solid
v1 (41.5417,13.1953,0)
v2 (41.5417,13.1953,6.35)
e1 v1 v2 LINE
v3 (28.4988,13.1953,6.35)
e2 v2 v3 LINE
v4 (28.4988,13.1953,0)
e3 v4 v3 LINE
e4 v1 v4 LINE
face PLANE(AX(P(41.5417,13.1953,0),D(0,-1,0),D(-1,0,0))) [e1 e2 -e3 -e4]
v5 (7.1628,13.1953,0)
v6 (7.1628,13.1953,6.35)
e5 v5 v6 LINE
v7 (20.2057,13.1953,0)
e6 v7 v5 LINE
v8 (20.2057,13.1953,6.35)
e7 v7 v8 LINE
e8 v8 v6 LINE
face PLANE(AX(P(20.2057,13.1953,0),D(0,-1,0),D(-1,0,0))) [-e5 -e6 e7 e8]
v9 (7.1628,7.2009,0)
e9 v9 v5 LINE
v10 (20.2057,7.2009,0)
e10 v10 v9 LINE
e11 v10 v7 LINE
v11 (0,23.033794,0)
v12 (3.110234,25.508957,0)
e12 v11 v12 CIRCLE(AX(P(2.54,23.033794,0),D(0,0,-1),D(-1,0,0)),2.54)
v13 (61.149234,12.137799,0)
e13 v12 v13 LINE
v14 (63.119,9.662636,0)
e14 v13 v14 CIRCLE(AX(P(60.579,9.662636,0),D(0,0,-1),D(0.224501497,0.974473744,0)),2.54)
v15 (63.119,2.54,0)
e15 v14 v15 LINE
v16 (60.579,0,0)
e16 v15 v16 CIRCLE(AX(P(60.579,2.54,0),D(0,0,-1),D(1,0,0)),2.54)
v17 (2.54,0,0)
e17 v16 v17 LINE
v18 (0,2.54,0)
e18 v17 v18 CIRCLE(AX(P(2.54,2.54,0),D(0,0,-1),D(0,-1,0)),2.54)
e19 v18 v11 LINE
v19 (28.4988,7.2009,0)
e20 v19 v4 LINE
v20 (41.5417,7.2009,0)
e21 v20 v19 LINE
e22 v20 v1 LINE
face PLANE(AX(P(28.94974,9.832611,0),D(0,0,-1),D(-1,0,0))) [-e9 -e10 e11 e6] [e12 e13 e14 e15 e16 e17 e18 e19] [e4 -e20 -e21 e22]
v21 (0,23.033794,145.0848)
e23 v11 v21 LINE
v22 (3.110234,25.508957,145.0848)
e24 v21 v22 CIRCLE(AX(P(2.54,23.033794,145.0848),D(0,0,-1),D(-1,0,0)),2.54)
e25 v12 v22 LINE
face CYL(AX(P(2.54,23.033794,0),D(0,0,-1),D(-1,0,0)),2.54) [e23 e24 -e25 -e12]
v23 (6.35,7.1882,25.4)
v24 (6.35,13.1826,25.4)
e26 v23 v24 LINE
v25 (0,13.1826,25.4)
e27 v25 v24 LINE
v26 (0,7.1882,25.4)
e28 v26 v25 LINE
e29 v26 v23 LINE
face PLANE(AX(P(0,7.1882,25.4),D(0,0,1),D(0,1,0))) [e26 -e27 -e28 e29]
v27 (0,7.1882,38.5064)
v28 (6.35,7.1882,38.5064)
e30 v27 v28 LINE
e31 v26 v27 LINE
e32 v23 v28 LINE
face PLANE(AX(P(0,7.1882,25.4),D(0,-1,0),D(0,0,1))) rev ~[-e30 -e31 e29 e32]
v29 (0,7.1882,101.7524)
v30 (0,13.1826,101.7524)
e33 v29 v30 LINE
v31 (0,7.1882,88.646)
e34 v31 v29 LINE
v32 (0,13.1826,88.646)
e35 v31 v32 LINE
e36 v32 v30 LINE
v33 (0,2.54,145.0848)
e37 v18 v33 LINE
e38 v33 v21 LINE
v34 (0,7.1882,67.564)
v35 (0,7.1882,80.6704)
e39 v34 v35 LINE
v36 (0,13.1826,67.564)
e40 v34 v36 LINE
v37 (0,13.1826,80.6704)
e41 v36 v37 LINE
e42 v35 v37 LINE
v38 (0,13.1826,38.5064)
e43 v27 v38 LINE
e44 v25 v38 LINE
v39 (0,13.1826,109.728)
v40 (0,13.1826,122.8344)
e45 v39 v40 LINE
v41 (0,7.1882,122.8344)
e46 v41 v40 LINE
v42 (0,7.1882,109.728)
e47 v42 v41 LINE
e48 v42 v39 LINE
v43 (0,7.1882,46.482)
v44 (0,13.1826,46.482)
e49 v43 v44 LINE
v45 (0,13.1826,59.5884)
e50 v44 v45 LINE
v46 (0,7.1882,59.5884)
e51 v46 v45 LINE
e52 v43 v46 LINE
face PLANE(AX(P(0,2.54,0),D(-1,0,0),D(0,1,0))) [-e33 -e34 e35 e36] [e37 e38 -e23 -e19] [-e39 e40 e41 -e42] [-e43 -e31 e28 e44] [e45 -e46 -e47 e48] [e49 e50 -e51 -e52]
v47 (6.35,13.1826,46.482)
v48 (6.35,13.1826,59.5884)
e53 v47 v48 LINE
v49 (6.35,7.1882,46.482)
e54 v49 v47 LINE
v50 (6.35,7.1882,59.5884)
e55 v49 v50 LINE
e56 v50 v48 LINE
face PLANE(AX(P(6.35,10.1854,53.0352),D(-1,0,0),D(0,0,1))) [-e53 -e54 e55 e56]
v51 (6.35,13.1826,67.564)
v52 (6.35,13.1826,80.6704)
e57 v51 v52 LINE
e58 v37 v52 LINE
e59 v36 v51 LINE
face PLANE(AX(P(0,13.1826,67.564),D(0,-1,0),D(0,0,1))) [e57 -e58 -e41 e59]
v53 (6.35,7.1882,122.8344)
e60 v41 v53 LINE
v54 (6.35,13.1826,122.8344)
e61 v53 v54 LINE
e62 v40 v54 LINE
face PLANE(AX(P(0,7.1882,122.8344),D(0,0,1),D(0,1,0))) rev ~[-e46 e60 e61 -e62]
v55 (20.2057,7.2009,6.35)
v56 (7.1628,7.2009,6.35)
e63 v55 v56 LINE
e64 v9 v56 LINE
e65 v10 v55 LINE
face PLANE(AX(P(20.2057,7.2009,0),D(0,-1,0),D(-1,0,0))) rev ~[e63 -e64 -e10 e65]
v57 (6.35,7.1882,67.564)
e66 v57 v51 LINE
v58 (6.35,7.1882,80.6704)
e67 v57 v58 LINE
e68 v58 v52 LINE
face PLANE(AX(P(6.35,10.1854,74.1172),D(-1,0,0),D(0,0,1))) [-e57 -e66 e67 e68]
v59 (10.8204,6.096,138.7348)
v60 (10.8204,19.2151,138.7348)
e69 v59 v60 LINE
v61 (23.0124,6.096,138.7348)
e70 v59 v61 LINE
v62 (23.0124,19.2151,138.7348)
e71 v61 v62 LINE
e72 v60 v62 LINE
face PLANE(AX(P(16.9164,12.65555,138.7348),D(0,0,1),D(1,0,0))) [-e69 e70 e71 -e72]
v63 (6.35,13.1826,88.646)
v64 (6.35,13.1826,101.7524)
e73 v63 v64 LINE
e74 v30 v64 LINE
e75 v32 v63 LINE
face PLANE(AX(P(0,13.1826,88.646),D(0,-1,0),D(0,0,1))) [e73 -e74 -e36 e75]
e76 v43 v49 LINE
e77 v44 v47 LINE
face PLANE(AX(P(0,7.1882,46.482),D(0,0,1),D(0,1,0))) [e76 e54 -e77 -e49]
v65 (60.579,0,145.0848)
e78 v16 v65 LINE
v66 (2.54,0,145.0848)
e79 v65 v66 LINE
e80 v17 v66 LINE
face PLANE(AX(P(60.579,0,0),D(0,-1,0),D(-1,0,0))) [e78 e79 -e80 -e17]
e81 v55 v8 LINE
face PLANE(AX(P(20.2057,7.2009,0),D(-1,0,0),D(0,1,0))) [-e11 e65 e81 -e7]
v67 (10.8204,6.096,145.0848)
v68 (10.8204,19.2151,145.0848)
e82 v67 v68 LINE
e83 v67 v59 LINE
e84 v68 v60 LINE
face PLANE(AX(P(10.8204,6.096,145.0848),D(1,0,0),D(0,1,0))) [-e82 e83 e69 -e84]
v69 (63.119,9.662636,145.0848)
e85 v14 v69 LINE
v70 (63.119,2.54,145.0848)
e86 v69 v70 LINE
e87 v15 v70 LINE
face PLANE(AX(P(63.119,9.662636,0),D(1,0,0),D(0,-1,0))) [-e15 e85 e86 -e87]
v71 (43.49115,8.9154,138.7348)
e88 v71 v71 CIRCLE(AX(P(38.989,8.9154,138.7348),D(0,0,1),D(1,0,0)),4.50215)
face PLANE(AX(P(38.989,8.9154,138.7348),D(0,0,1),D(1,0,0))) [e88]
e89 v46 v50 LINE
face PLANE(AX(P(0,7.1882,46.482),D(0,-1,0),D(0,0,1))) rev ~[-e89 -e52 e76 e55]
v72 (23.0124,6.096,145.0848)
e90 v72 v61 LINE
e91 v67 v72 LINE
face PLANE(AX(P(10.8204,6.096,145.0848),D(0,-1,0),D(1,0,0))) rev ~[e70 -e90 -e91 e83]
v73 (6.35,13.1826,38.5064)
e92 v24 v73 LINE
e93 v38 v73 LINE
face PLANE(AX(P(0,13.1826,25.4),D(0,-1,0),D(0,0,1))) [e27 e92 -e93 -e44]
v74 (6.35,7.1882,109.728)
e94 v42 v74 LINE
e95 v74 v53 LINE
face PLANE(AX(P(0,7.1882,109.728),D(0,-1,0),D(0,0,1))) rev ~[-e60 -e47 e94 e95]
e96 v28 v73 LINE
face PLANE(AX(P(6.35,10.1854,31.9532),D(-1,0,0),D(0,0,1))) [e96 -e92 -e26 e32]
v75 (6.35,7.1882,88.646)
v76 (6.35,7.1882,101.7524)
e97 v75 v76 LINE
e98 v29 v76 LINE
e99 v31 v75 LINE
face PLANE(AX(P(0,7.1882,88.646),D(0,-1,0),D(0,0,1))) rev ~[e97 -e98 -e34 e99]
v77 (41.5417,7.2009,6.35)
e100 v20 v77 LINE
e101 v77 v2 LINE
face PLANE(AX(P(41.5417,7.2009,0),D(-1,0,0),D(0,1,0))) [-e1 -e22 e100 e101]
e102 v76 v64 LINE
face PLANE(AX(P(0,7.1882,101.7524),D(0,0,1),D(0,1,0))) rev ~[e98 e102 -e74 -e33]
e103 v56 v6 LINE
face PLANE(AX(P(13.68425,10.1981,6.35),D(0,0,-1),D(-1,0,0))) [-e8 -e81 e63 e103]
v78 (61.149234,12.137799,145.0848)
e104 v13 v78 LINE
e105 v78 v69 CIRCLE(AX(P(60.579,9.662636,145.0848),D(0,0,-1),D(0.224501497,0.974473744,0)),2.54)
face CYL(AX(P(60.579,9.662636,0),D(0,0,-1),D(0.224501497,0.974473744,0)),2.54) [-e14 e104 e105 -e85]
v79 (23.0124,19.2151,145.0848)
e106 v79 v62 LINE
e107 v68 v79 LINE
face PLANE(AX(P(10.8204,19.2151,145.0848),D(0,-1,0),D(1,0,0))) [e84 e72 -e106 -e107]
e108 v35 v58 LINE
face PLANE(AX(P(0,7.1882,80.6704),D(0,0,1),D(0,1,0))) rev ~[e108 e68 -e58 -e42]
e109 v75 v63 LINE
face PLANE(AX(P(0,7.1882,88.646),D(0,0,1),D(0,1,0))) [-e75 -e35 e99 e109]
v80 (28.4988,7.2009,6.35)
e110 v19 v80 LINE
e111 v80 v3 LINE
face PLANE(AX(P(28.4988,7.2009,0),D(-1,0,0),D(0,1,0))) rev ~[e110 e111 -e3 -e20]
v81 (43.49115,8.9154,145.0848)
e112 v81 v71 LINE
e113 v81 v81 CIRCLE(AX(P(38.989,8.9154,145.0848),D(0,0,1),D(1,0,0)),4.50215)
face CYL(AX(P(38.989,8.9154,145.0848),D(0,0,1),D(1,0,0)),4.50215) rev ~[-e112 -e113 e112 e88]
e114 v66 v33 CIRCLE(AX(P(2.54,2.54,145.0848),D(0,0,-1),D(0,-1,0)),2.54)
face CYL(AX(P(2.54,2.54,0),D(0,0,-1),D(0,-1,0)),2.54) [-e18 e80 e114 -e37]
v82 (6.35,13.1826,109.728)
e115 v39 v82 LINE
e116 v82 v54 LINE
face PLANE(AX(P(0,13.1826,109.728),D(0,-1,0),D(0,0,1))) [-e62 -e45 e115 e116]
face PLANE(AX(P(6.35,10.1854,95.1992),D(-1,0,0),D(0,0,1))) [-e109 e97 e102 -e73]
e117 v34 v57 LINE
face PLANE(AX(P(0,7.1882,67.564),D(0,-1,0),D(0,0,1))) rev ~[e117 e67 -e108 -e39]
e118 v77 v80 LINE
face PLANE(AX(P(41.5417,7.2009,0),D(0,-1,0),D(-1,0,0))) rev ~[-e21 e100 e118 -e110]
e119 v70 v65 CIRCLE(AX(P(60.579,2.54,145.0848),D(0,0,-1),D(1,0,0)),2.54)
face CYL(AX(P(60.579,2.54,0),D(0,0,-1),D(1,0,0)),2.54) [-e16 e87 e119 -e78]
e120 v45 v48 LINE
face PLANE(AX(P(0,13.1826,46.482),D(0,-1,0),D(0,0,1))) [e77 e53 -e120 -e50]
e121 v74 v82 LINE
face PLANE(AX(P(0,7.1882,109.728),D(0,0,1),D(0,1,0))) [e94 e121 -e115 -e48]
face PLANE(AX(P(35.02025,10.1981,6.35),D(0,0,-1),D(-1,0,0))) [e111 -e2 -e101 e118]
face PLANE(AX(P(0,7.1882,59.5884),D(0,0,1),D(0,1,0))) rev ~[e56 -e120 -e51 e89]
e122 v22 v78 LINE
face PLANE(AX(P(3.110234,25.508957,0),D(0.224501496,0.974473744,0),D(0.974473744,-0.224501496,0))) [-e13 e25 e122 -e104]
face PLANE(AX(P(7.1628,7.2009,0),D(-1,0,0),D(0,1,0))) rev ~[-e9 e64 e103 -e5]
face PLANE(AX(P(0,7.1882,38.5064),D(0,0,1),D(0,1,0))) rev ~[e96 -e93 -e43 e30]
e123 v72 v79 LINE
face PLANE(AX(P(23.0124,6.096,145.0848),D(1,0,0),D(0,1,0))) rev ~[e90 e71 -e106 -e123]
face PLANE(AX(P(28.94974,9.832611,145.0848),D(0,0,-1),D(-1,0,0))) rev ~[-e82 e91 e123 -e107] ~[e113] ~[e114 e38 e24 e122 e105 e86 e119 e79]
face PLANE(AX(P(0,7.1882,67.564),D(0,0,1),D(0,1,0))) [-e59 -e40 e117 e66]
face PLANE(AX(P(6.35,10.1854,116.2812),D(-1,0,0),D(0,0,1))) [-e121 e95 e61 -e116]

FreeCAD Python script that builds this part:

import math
import FreeCAD as App
import Part
import Sketcher

V = App.Vector
Q = App.Units.Quantity


def add_polygon(sketch, points):
    """Adds a closed chain of lines whose ends are joined by coincident constraints."""
    first, n = sketch.GeometryCount, len(points)
    for a, b in zip(points, points[1:] + points[:1]):
        sketch.addGeometry(Part.LineSegment(App.Vector(*a, 0), App.Vector(*b, 0)), False)
    for i in range(n):
        sketch.addConstraint(Sketcher.Constraint("Coincident", first + i, 2, first + (i + 1) % n, 1))

doc = App.newDocument("Part")
body = doc.addObject("PartDesign::Body", "Body")

# Sketch on XY plane
sketch1 = body.newObject("Sketcher::SketchObject", "Sketch")
sketch1.AttachmentSupport = (doc.getObject("XY_Plane"), [""])
sketch1.MapMode = "FlatFace"
sketch1.addGeometry([
    Part.LineSegment(V(61.1, 12.1, 0), V(3.1, 25.5, 0)),  # 0
    Part.ArcOfCircle(Part.Circle(V(2.5, 23, 0), V(0, 0, 1), 2.5), math.radians(77), math.radians(180)),  # 1
    Part.LineSegment(V(0, 23, 0), V(0, 2.5, 0)),  # 2
    Part.ArcOfCircle(Part.Circle(V(2.5, 2.5, 0), V(0, 0, 1), 2.5), math.radians(-180), math.radians(-90)),  # 3
    Part.LineSegment(V(2.5, 0, 0), V(60.6, 0, 0)),  # 4
    Part.ArcOfCircle(Part.Circle(V(60.6, 2.5, 0), V(0, 0, 1), 2.5), math.radians(-90), math.radians(0)),  # 5
    Part.LineSegment(V(63.1, 2.5, 0), V(63.1, 9.7, 0)),  # 6
    Part.ArcOfCircle(Part.Circle(V(60.6, 9.7, 0), V(0, 0, 1), 2.5), math.radians(0), math.radians(77)),  # 7
], False)
sketch1.addConstraint([
    Sketcher.Constraint("Tangent", 0, 2, 1, 1),
    Sketcher.Constraint("Tangent", 1, 2, 2, 1),
    Sketcher.Constraint("Tangent", 2, 2, 3, 1),
    Sketcher.Constraint("Tangent", 3, 2, 4, 1),
    Sketcher.Constraint("Tangent", 4, 2, 5, 1),
    Sketcher.Constraint("Tangent", 5, 2, 6, 1),
    Sketcher.Constraint("Tangent", 6, 2, 7, 1),
    Sketcher.Constraint("Tangent", 7, 2, 0, 1),
    Sketcher.Constraint("Vertical", 2),
    Sketcher.Constraint("Horizontal", 4),
    Sketcher.Constraint("Vertical", 6),
    Sketcher.Constraint("Equal", 1, 3),
    Sketcher.Constraint("Equal", 3, 5),
    Sketcher.Constraint("Equal", 5, 7),
    Sketcher.Constraint("PointOnObject", 1, 2, -2),
    Sketcher.Constraint("PointOnObject", 3, 2, -1),
    Sketcher.Constraint("Radius", 1, Q("0.1 in")),
    Sketcher.Constraint("DistanceX", 4, 1, 4, 2, Q("2.285 in")),
    Sketcher.Constraint("DistanceY", -1, 1, 7, 2, Q("12.137799 mm")),
    Sketcher.Constraint("DistanceY", 2, 2, 2, 1, Q("20.493794 mm")),
])
pad1 = body.newObject("PartDesign::Pad", "Pad")
pad1.Profile = sketch1
pad1.Length = Q("5.712 in")

# Sketch on XY plane
sketch2 = body.newObject("Sketcher::SketchObject", "Sketch001")
sketch2.AttachmentSupport = (doc.getObject("XY_Plane"), [""])
sketch2.MapMode = "FlatFace"
sketch2.AttachmentOffset = App.Placement(V(0, 0, 5.712 * 25.4), App.Rotation())
sketch2.addGeometry(Part.Circle(V(39, 8.9, 0), V(0, 0, 1), 4.5), False)  # 0
add_polygon(sketch2, [(10.8, 19.2), (10.8, 6.1), (23, 6.1), (23, 19.2)])  # lines 1-4
sketch2.addConstraint([
    Sketcher.Constraint("Vertical", 1),
    Sketcher.Constraint("Horizontal", 2),
    Sketcher.Constraint("Vertical", 3),
    Sketcher.Constraint("Horizontal", 4),
    Sketcher.Constraint("Diameter", 0, Q("0.3545 in")),
    Sketcher.Constraint("DistanceX", 2, 1, 2, 2, Q("0.48 in")),
    Sketcher.Constraint("DistanceY", -1, 1, 1, 2, Q("0.24 in")),
    Sketcher.Constraint("DistanceY", 1, 2, 1, 1, Q("0.5165 in")),
    Sketcher.Constraint("DistanceX", -1, 1, 0, 3, Q("1.535 in")),
    Sketcher.Constraint("DistanceY", -1, 1, 0, 3, Q("0.351 in")),
    Sketcher.Constraint("DistanceX", -1, 1, 1, 2, Q("0.426 in")),
])
pocket1 = body.newObject("PartDesign::Pocket", "Pocket")
pocket1.Profile = sketch2
pocket1.Length = Q("0.25 in")

# Sketch on YZ plane
sketch3 = body.newObject("Sketcher::SketchObject", "Sketch002")
sketch3.AttachmentSupport = (doc.getObject("YZ_Plane"), [""])
sketch3.MapMode = "FlatFace"
add_polygon(sketch3, [(13, 25), (7, 25), (7, 39), (13, 39)])  # lines 0-3
add_polygon(sketch3, [(13, 46), (7, 46), (7, 60), (13, 60)])  # lines 4-7
add_polygon(sketch3, [(13, 68), (7, 68), (7, 81), (13, 81)])  # lines 8-11
add_polygon(sketch3, [(13, 89), (7, 89), (7, 102), (13, 102)])  # lines 12-15
add_polygon(sketch3, [(13, 110), (7, 110), (7, 123), (13, 123)])  # lines 16-19
sketch3.addConstraint([
    Sketcher.Constraint("Horizontal", 0),
    Sketcher.Constraint("Vertical", 1),
    Sketcher.Constraint("Horizontal", 2),
    Sketcher.Constraint("Vertical", 3),
    Sketcher.Constraint("Horizontal", 4),
    Sketcher.Constraint("Vertical", 5),
    Sketcher.Constraint("Horizontal", 6),
    Sketcher.Constraint("Vertical", 7),
    Sketcher.Constraint("Horizontal", 8),
    Sketcher.Constraint("Vertical", 9),
    Sketcher.Constraint("Horizontal", 10),
    Sketcher.Constraint("Vertical", 11),
    Sketcher.Constraint("Horizontal", 12),
    Sketcher.Constraint("Vertical", 13),
    Sketcher.Constraint("Horizontal", 14),
    Sketcher.Constraint("Vertical", 15),
    Sketcher.Constraint("Horizontal", 16),
    Sketcher.Constraint("Vertical", 17),
    Sketcher.Constraint("Horizontal", 18),
    Sketcher.Constraint("Vertical", 19),
    Sketcher.Constraint("Vertical", 1, 2, 4, 2),
    Sketcher.Constraint("Vertical", 3, 2, 6, 2),
    Sketcher.Constraint("Vertical", 5, 2, 8, 2),
    Sketcher.Constraint("Vertical", 7, 2, 10, 2),
    Sketcher.Constraint("Vertical", 9, 2, 12, 2),
    Sketcher.Constraint("Vertical", 11, 2, 14, 2),
    Sketcher.Constraint("Vertical", 13, 2, 16, 2),
    Sketcher.Constraint("Vertical", 15, 2, 18, 2),
    Sketcher.Constraint("Equal", 3, 5),
    Sketcher.Constraint("Equal", 7, 9),
    Sketcher.Constraint("Equal", 11, 13),
    Sketcher.Constraint("Equal", 15, 17),
    Sketcher.Constraint("DistanceY", -1, 1, 0, 2, Q("1 in")),
    Sketcher.Constraint("DistanceX", 0, 2, 0, 1, Q("0.236 in")),
    Sketcher.Constraint("DistanceY", 1, 1, 1, 2, Q("0.516 in")),
    Sketcher.Constraint("DistanceY", -1, 1, 4, 2, Q("1.83 in")),
    Sketcher.Constraint("DistanceY", -1, 1, 8, 2, Q("2.66 in")),
    Sketcher.Constraint("DistanceY", -1, 1, 12, 2, Q("3.49 in")),
    Sketcher.Constraint("DistanceY", -1, 1, 16, 2, Q("4.32 in")),
    Sketcher.Constraint("DistanceX", -1, 1, 0, 2, Q("0.283 in")),
])
pocket2 = body.newObject("PartDesign::Pocket", "Pocket001")
pocket2.Profile = sketch3
pocket2.Length = Q("0.25 in")
pocket2.Reversed = True

# Sketch on XY plane
sketch4 = body.newObject("Sketcher::SketchObject", "Sketch003")
sketch4.AttachmentSupport = (doc.getObject("XY_Plane"), [""])
sketch4.MapMode = "FlatFace"
add_polygon(sketch4, [(20, 13), (20, 7), (7, 7), (7, 13)])  # lines 0-3
add_polygon(sketch4, [(42, 13), (42, 7), (28, 7), (28, 13)])  # lines 4-7
sketch4.addConstraint([
    Sketcher.Constraint("Vertical", 0),
    Sketcher.Constraint("Horizontal", 1),
    Sketcher.Constraint("Vertical", 2),
    Sketcher.Constraint("Horizontal", 3),
    Sketcher.Constraint("Vertical", 4),
    Sketcher.Constraint("Horizontal", 5),
    Sketcher.Constraint("Vertical", 6),
    Sketcher.Constraint("Horizontal", 7),
    Sketcher.Constraint("Horizontal", 1, 2, 4, 2),
    Sketcher.Constraint("Horizontal", 3, 2, 6, 2),
    Sketcher.Constraint("Equal", 3, 5),
    Sketcher.Constraint("DistanceY", 0, 2, 0, 1, Q("0.236 in")),
    Sketcher.Constraint("DistanceX", 0, 2, 4, 2, Q("0.84 in")),
    Sketcher.Constraint("DistanceX", 1, 2, 1, 1, Q("0.5135 in")),
    Sketcher.Constraint("DistanceX", -1, 1, 1, 2, Q("0.282 in")),
    Sketcher.Constraint("DistanceY", -1, 1, 0, 2, Q("0.2835 in")),
])
pocket3 = body.newObject("PartDesign::Pocket", "Pocket002")
pocket3.Profile = sketch4
pocket3.Length = Q("0.25 in")
pocket3.Reversed = True

doc.recompute()
